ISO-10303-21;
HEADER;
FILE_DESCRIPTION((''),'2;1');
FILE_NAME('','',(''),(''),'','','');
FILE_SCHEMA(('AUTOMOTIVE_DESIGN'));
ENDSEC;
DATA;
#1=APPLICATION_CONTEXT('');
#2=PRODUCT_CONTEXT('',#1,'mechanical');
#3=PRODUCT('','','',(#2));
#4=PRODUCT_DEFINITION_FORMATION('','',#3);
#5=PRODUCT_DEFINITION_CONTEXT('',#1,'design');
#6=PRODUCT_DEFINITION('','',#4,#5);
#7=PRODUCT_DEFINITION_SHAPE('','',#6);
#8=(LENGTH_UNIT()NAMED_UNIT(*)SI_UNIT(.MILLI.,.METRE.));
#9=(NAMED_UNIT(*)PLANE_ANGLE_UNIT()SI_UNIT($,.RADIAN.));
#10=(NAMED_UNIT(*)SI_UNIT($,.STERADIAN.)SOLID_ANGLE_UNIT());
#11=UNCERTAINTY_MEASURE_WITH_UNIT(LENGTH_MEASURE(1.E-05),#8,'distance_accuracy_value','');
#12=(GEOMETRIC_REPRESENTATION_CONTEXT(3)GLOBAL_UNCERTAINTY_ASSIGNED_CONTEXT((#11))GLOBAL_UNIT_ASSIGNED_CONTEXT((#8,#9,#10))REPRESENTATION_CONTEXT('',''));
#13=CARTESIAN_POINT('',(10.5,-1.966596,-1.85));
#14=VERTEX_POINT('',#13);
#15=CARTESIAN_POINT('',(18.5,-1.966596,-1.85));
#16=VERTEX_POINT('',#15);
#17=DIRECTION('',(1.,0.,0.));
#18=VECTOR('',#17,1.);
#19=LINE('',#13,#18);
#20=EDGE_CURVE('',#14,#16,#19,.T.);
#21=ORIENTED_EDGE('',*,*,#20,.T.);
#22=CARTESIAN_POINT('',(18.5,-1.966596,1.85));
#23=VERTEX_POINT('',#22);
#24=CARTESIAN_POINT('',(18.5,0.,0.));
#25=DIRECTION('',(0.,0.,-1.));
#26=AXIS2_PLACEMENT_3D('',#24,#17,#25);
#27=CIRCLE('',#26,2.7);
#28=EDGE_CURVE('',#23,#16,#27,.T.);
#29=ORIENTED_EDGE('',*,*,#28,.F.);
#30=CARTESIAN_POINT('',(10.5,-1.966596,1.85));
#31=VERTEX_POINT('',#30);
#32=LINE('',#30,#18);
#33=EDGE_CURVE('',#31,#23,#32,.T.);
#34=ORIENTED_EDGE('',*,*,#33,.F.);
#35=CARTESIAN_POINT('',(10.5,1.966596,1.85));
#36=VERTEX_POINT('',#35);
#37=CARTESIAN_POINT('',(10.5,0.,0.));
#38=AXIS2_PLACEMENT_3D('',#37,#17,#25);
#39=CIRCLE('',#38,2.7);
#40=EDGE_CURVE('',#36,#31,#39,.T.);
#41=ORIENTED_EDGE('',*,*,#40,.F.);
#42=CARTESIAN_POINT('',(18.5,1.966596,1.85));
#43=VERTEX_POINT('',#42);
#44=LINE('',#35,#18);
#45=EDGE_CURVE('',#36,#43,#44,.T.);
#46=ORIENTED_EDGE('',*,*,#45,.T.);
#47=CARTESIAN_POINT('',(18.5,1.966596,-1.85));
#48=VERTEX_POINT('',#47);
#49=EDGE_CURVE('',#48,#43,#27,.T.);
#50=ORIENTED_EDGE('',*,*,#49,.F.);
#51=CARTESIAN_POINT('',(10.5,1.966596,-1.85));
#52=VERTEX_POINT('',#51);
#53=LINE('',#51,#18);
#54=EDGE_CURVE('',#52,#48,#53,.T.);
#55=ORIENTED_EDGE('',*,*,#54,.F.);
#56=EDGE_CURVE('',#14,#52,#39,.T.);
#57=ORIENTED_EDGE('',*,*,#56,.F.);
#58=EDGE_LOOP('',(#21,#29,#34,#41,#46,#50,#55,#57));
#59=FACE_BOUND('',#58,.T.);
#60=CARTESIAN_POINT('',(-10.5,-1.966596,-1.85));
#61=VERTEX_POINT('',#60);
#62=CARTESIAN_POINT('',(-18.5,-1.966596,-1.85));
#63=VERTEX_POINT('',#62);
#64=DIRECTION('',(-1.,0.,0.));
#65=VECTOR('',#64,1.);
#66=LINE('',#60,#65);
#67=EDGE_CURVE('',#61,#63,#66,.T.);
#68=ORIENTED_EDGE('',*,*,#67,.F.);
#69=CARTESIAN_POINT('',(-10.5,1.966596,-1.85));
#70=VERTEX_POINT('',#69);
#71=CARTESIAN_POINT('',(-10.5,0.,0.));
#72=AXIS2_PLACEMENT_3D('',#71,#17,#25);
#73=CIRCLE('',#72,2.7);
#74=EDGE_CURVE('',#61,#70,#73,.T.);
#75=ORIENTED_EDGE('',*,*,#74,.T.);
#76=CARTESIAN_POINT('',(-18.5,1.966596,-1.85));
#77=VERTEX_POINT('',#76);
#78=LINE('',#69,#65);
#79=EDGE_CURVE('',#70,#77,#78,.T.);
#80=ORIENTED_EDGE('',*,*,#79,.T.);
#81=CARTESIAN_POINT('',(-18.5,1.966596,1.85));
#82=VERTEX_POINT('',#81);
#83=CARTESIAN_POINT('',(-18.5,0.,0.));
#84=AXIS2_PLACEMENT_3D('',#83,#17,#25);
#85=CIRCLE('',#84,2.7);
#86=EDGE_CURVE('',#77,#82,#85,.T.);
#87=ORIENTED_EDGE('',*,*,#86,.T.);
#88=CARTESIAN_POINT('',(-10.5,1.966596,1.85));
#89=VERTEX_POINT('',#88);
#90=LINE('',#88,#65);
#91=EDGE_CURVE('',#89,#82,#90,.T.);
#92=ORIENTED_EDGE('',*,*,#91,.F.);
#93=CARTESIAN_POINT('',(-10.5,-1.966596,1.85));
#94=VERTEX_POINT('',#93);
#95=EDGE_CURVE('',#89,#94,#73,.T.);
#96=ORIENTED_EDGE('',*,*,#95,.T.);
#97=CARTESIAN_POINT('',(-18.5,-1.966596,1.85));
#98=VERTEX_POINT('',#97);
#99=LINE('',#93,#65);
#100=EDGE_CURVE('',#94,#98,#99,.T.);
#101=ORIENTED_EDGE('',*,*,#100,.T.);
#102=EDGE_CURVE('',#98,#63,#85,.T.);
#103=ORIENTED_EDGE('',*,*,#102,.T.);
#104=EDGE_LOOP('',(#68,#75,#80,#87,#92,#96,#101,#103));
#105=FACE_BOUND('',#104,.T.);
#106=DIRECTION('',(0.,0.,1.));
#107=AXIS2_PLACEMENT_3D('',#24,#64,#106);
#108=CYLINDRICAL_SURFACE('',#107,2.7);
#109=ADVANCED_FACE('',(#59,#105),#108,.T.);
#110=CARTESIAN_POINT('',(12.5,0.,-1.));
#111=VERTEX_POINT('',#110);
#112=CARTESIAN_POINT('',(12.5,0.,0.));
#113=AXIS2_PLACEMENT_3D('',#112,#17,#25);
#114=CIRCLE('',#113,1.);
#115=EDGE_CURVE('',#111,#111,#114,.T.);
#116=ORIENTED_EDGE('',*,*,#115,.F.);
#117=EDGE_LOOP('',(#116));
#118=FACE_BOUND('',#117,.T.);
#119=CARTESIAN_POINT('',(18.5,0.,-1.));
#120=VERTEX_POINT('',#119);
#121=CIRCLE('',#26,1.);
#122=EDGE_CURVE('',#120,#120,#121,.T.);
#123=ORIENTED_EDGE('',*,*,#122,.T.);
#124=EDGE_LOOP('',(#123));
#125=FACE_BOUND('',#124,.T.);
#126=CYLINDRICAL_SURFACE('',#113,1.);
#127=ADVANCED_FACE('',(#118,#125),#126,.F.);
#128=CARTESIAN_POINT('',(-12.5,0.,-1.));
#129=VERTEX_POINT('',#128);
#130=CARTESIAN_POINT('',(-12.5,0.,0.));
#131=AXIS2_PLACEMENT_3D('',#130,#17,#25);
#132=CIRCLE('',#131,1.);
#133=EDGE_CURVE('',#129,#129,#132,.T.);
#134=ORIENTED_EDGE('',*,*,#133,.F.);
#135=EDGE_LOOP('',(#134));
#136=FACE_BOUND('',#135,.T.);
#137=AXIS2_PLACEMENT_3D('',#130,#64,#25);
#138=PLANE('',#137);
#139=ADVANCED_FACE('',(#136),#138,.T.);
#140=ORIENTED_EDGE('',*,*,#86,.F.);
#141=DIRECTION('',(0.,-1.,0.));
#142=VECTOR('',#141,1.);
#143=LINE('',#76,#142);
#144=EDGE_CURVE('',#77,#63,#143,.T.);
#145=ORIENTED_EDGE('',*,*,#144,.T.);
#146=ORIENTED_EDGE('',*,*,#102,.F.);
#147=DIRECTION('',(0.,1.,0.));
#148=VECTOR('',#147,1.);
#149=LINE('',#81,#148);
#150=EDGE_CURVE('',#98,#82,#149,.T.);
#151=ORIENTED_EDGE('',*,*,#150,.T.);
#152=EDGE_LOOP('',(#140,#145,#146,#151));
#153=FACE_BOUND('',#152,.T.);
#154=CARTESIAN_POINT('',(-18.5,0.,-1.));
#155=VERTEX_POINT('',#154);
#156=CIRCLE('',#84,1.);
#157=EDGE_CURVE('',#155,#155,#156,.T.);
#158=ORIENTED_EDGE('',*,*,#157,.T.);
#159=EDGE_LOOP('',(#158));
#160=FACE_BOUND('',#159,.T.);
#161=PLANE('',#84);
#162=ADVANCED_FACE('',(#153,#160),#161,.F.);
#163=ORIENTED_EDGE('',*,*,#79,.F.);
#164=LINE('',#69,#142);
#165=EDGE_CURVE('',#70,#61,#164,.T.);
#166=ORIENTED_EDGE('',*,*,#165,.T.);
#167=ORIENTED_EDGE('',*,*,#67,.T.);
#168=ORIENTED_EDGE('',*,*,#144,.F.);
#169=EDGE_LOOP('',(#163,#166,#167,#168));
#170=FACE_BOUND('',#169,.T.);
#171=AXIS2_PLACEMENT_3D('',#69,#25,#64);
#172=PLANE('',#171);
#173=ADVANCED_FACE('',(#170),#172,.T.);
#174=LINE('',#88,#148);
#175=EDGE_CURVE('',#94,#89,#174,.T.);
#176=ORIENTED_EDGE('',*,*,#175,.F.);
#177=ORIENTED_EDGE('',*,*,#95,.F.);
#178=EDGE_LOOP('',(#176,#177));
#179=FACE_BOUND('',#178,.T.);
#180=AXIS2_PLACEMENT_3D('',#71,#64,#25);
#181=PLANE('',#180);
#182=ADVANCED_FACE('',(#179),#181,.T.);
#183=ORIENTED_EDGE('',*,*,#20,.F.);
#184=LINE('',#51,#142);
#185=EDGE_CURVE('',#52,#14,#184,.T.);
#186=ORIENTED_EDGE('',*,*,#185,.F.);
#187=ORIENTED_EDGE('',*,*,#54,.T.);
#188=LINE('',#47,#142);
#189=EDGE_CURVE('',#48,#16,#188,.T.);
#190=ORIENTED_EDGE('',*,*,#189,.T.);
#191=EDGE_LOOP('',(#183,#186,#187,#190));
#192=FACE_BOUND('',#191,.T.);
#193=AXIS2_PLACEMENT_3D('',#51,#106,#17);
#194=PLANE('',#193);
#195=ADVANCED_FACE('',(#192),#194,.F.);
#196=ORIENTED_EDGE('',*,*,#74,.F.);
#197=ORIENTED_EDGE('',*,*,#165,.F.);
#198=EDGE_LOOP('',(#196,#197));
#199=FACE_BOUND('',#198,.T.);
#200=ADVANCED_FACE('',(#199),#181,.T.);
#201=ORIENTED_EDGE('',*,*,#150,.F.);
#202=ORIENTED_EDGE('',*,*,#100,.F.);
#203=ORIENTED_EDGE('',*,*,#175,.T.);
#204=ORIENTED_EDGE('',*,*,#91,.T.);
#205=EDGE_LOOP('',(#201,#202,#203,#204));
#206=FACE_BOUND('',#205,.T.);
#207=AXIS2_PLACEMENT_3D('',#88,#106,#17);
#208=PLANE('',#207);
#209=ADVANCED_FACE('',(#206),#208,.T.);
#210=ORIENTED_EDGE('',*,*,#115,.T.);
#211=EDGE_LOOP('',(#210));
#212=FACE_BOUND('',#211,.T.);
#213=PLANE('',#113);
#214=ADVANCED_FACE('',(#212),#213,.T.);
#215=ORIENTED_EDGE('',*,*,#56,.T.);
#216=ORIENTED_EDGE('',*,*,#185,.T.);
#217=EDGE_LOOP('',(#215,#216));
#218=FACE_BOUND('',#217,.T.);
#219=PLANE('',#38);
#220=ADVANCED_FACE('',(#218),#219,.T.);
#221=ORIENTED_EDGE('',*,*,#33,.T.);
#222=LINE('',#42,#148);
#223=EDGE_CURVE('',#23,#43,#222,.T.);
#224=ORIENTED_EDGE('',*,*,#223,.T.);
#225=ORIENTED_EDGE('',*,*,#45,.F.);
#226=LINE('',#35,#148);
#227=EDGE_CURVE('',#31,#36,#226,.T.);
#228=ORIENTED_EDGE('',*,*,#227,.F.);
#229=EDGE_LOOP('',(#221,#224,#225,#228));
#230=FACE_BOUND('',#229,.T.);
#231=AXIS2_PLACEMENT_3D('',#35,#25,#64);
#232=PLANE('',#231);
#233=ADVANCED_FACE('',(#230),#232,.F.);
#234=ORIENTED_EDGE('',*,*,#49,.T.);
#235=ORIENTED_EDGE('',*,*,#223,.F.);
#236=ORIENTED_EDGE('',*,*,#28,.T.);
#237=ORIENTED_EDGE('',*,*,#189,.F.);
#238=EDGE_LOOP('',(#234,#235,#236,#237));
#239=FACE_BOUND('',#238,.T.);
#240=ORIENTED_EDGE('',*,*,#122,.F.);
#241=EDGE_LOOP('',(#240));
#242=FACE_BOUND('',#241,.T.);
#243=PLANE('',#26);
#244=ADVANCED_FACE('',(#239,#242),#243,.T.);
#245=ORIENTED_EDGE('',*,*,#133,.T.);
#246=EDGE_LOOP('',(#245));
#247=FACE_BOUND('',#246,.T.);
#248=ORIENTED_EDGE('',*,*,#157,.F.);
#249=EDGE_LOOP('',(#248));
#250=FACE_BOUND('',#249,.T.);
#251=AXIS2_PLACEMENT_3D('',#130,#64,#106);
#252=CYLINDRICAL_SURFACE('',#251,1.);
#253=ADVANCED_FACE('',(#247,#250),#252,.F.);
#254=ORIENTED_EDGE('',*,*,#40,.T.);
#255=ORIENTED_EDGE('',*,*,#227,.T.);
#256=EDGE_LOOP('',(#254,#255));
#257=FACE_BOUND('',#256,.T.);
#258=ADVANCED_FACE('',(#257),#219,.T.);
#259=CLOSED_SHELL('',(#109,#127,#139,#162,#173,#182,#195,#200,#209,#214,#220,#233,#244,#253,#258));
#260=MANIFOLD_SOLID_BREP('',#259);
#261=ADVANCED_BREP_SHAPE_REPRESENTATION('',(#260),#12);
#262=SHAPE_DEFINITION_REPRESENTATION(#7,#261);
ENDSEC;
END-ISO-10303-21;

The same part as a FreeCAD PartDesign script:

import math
import FreeCAD as App
import Part
import Sketcher

doc = App.newDocument("Part")
body = doc.addObject("PartDesign::Body", "Body")

# Sketch on YZ plane
sketch1 = body.newObject("Sketcher::SketchObject", "Sketch")
sketch1.AttachmentSupport = (doc.getObject("YZ_Plane"), [""])
sketch1.MapMode = "FlatFace"
sketch1.addGeometry(Part.Circle(App.Vector(0, 0, 0), App.Vector(0, 0, 1), 2.7), False)
sketch1.addConstraint(Sketcher.Constraint("Coincident", 0, 3, -1, 1))
sketch1.addConstraint(Sketcher.Constraint("Diameter", 0, 5.4))
pad1 = body.newObject("PartDesign::Pad", "Pad")
pad1.Profile = sketch1
pad1.Length = 37
pad1.Midplane = True

# Sketch on YZ plane
sketch2 = body.newObject("Sketcher::SketchObject", "Sketch001")
sketch2.AttachmentSupport = (doc.getObject("YZ_Plane"), [""])
sketch2.MapMode = "FlatFace"
sketch2.AttachmentOffset = App.Placement(App.Vector(0, 0, 18.5), App.Rotation())
sketch2.addGeometry(Part.LineSegment(App.Vector(-2, 1.9, 0), App.Vector(2, 1.9, 0)), False)
sketch2.addGeometry(Part.ArcOfCircle(Part.Circle(App.Vector(0, 0, 0), App.Vector(0, 0, 1), 2.7), math.radians(43), math.radians(137)), False)
sketch2.addGeometry(Part.LineSegment(App.Vector(2, -1.9, 0), App.Vector(-2, -1.9, 0)), False)
sketch2.addGeometry(Part.ArcOfCircle(Part.Circle(App.Vector(0, 0, 0), App.Vector(0, 0, 1), 2.7), math.radians(-137), math.radians(-43)), False)
sketch2.addConstraint(Sketcher.Constraint("Coincident", 0, 1, 1, 2))
sketch2.addConstraint(Sketcher.Constraint("Coincident", 1, 1, 0, 2))
sketch2.addConstraint(Sketcher.Constraint("Coincident", 2, 1, 3, 2))
sketch2.addConstraint(Sketcher.Constraint("Coincident", 3, 1, 2, 2))
sketch2.addConstraint(Sketcher.Constraint("Horizontal", 0))
sketch2.addConstraint(Sketcher.Constraint("Horizontal", 2))
sketch2.addConstraint(Sketcher.Constraint("Coincident", 1, 3, -1, 1))
sketch2.addConstraint(Sketcher.Constraint("Coincident", 3, 3, -1, 1))
sketch2.addConstraint(Sketcher.Constraint("Equal", 1, 3))
sketch2.addConstraint(Sketcher.Constraint("Vertical", 1, 1, 2, 1))
sketch2.addConstraint(Sketcher.Constraint("Radius", 1, 2.7))
sketch2.addConstraint(Sketcher.Constraint("DistanceY", 2, 1, 1, 1, 3.7))
pocket1 = body.newObject("PartDesign::Pocket", "Pocket")
pocket1.Profile = sketch2
pocket1.Length = 8

# Sketch on YZ plane
sketch3 = body.newObject("Sketcher::SketchObject", "Sketch002")
sketch3.AttachmentSupport = (doc.getObject("YZ_Plane"), [""])
sketch3.MapMode = "FlatFace"
sketch3.AttachmentOffset = App.Placement(App.Vector(0, 0, 18.5), App.Rotation())
sketch3.addGeometry(Part.Circle(App.Vector(0, 0, 0), App.Vector(0, 0, 1), 1), False)
sketch3.addConstraint(Sketcher.Constraint("Coincident", 0, 3, -1, 1))
sketch3.addConstraint(Sketcher.Constraint("Diameter", 0, 2.0))
pocket2 = body.newObject("PartDesign::Pocket", "Pocket001")
pocket2.Profile = sketch3
pocket2.Length = 6
doc.recompute()

mirrored = body.newObject("PartDesign::Mirrored", "Mirrored")
mirrored.Originals = [pocket1, pocket2]
mirrored.MirrorPlane = (doc.getObject("YZ_Plane"), [""])
body.Tip = mirrored

doc.recompute()
